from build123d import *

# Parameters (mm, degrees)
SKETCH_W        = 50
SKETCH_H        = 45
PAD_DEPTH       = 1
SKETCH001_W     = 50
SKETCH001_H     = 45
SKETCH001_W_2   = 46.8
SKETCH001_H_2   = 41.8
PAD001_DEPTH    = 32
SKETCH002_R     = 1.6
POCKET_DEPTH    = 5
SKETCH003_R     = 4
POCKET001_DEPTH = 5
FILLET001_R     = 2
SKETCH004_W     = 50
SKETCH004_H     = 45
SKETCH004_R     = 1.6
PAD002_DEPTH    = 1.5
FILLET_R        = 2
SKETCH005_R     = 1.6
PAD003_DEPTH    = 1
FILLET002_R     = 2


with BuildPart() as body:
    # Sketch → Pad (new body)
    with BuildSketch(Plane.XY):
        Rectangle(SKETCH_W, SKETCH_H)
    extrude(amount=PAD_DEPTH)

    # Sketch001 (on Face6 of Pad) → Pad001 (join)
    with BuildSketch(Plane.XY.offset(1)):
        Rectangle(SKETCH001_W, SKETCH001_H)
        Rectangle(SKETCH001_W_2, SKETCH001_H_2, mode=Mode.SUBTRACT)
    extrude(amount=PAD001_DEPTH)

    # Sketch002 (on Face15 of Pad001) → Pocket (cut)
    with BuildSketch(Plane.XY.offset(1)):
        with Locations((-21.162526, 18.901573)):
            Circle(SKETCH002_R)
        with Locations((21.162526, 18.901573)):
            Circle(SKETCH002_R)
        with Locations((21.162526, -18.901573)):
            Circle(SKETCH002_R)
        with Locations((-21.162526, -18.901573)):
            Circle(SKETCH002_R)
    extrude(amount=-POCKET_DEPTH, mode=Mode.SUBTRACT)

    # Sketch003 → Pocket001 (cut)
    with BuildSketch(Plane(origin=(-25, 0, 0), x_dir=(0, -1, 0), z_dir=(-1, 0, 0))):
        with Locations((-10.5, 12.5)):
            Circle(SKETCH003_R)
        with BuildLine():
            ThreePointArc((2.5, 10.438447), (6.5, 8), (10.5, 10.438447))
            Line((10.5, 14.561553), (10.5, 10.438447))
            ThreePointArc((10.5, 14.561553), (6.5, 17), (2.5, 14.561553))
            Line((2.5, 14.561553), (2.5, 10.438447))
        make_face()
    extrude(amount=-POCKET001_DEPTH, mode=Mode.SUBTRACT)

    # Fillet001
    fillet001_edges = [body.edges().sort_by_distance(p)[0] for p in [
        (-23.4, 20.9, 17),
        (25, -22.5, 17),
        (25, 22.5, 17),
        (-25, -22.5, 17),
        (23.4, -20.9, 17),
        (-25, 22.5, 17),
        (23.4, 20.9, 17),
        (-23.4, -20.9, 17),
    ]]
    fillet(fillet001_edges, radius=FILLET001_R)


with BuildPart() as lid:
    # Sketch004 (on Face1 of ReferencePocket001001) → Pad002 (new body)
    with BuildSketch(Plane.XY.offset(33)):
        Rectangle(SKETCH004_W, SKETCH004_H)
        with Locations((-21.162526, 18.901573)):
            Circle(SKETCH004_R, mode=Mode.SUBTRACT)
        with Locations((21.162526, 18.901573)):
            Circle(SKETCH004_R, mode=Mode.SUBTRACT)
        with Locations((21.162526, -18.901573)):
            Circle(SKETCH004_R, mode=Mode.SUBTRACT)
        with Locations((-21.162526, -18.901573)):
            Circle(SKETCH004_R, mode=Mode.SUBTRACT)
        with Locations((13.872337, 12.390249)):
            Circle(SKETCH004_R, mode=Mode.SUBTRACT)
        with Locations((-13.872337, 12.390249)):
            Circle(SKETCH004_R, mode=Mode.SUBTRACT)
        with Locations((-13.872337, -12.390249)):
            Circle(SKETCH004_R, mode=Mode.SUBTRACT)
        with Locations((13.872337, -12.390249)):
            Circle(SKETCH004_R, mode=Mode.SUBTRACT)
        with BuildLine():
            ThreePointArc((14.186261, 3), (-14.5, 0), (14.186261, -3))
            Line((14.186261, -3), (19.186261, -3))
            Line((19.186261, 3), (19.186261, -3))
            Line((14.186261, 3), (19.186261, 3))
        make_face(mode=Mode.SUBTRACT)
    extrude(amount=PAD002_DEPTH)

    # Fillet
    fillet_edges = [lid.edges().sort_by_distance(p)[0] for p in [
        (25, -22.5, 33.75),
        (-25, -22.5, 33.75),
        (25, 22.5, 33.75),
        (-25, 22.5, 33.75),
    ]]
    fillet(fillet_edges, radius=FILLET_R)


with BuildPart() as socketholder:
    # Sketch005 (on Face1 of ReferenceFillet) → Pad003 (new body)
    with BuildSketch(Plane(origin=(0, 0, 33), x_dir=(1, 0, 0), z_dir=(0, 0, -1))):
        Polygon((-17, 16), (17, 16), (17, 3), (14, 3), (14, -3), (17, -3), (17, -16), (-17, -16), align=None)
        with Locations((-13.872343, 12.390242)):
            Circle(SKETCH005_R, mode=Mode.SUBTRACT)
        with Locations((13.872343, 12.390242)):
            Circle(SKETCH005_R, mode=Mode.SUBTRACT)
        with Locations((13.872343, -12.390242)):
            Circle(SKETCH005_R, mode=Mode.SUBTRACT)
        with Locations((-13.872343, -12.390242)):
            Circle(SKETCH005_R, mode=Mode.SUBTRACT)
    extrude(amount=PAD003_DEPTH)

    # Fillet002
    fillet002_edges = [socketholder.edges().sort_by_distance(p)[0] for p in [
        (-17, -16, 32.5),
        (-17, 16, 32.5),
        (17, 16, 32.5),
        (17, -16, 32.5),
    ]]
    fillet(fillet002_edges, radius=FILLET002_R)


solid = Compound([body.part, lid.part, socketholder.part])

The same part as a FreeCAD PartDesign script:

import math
import FreeCAD as App
import Part
import Sketcher
from FreeCAD import Vector
Q = App.Units.Quantity


def edges_at(feature, points):
    """Names of the edges that pass closest to the given points."""
    edges = feature.Shape.Edges
    near = lambda p: min(range(len(edges)), key=lambda i: edges[i].distToShape(Part.Vertex(*p))[0])
    return sorted({f"Edge{near(p) + 1}" for p in points})

doc = App.newDocument("Part")
params = doc.addObject("Spreadsheet::Sheet", "Params")
for row, (alias, value) in enumerate([
    ("sketch1_width", "50 mm"),
    ("sketch1_height", "45 mm"),
    ("pad1_length", "1 mm"),
    ("sketch2_width", "50 mm"),
    ("sketch2_height", "45 mm"),
    ("sketch2_width2", "46.8 mm"),
    ("sketch2_height2", "41.8 mm"),
    ("pad2_length", "32 mm"),
    ("sketch3_diameter", "3.2 mm"),
    ("pocket1_length", "5 mm"),
    ("sketch4_diameter", "8 mm"),
    ("sketch4_radius", "4.5 mm"),
    ("pocket2_length", "5 mm"),
    ("fillet_radius", "2 mm"),
    ("sketch5_diameter", "3.2 mm"),
    ("sketch5_radius", "14.5 mm"),
    ("sketch5_width", "50 mm"),
    ("sketch5_width2", "5 mm"),
    ("sketch5_height", "45 mm"),
    ("pad3_length", "1.5 mm"),
    ("fillet2_radius", "2 mm"),
    ("sketch6_diameter", "3.2 mm"),
    ("sketch6_width", "34 mm"),
    ("sketch6_width2", "3 mm"),
    ("sketch6_height", "32 mm"),
    ("sketch6_height2", "13 mm"),
    ("pad4_length", "1 mm"),
    ("fillet3_radius", "2 mm"),
], start=1):
    params.set(f"A{row}", alias)
    params.set(f"B{row}", "=" + value)
    params.setAlias(f"B{row}", alias)

body = doc.addObject("PartDesign::Body", "Body")

# Sketch on XY plane
sketch1 = body.newObject("Sketcher::SketchObject", "Sketch")
sketch1.AttachmentSupport = (doc.getObject("XY_Plane"), [""])
sketch1.MapMode = "FlatFace"
sketch1.addGeometry([
    Part.LineSegment(Vector(-25, 22, 0), Vector(-25, -22, 0)),
    Part.LineSegment(Vector(-25, -22, 0), Vector(25, -22, 0)),
    Part.LineSegment(Vector(25, -22, 0), Vector(25, 22, 0)),
    Part.LineSegment(Vector(25, 22, 0), Vector(-25, 22, 0)),
], False)
sketch1.addConstraint([
    Sketcher.Constraint("Coincident", 0, 2, 1, 1),
    Sketcher.Constraint("Coincident", 1, 2, 2, 1),
    Sketcher.Constraint("Coincident", 2, 2, 3, 1),
    Sketcher.Constraint("Coincident", 3, 2, 0, 1),
    Sketcher.Constraint("Vertical", 0),
    Sketcher.Constraint("Horizontal", 1),
    Sketcher.Constraint("Vertical", 2),
    Sketcher.Constraint("Horizontal", 3),
    Sketcher.Constraint("Symmetric", 0, 2, 2, 2, -1, 1),
    Sketcher.Constraint("DistanceX", 1, 1, 1, 2, Q("50 mm")),
    Sketcher.Constraint("DistanceY", 0, 2, 0, 1, Q("45 mm")),
])
sketch1.setExpression("Constraints[9]", "Params.sketch1_width")
sketch1.setExpression("Constraints[10]", "Params.sketch1_height")
pad1 = body.newObject("PartDesign::Pad", "Pad")
pad1.Profile = sketch1
pad1.setExpression("Length", "Params.pad1_length")

# Sketch on XY plane
sketch2 = body.newObject("Sketcher::SketchObject", "Sketch001")
sketch2.AttachmentSupport = (doc.getObject("XY_Plane"), [""])
sketch2.MapMode = "FlatFace"
sketch2.AttachmentOffset = App.Placement(Vector(0, 0, 1), App.Rotation())
sketch2.addGeometry([
    Part.LineSegment(Vector(-25, 22, 0), Vector(-25, -22, 0)),  # 0
    Part.LineSegment(Vector(-25, -22, 0), Vector(25, -22, 0)),  # 1
    Part.LineSegment(Vector(25, -22, 0), Vector(25, 22, 0)),  # 2
    Part.LineSegment(Vector(25, 22, 0), Vector(-25, 22, 0)),  # 3
    Part.LineSegment(Vector(23, -21, 0), Vector(-23, -21, 0)),  # 4
    Part.LineSegment(Vector(-23, -21, 0), Vector(-23, 21, 0)),  # 5
    Part.LineSegment(Vector(-23, 21, 0), Vector(23, 21, 0)),  # 6
    Part.LineSegment(Vector(23, 21, 0), Vector(23, -21, 0)),  # 7
], False)
sketch2.addConstraint([
    Sketcher.Constraint("Coincident", 0, 2, 1, 1),
    Sketcher.Constraint("Coincident", 1, 2, 2, 1),
    Sketcher.Constraint("Coincident", 2, 2, 3, 1),
    Sketcher.Constraint("Coincident", 3, 2, 0, 1),
    Sketcher.Constraint("Coincident", 4, 2, 5, 1),
    Sketcher.Constraint("Coincident", 5, 2, 6, 1),
    Sketcher.Constraint("Coincident", 6, 2, 7, 1),
    Sketcher.Constraint("Coincident", 7, 2, 4, 1),
    Sketcher.Constraint("Vertical", 0),
    Sketcher.Constraint("Horizontal", 1),
    Sketcher.Constraint("Vertical", 2),
    Sketcher.Constraint("Horizontal", 3),
    Sketcher.Constraint("Horizontal", 4),
    Sketcher.Constraint("Vertical", 5),
    Sketcher.Constraint("Horizontal", 6),
    Sketcher.Constraint("Vertical", 7),
    Sketcher.Constraint("Symmetric", 0, 2, 2, 2, -1, 1),
    Sketcher.Constraint("Symmetric", 4, 2, 6, 2, -1, 1),
    Sketcher.Constraint("DistanceX", 1, 1, 1, 2, Q("50 mm")),
    Sketcher.Constraint("DistanceY", 0, 2, 0, 1, Q("45 mm")),
    Sketcher.Constraint("DistanceX", 4, 2, 4, 1, Q("46.8 mm")),
    Sketcher.Constraint("DistanceY", 5, 1, 5, 2, Q("41.8 mm")),
])
sketch2.setExpression("Constraints[18]", "Params.sketch2_width")
sketch2.setExpression("Constraints[19]", "Params.sketch2_height")
sketch2.setExpression("Constraints[20]", "Params.sketch2_width2")
sketch2.setExpression("Constraints[21]", "Params.sketch2_height2")
pad2 = body.newObject("PartDesign::Pad", "Pad001")
pad2.Profile = sketch2
pad2.setExpression("Length", "Params.pad2_length")

# Sketch on XY plane
sketch3 = body.newObject("Sketcher::SketchObject", "Sketch002")
sketch3.AttachmentSupport = (doc.getObject("XY_Plane"), [""])
sketch3.MapMode = "FlatFace"
sketch3.AttachmentOffset = App.Placement(Vector(0, 0, 1), App.Rotation())
sketch3.addGeometry([
    Part.Circle(Vector(-21.2, 18.9, 0), Vector(0, 0, 1), 1.6),
    Part.Circle(Vector(21.2, 18.9, 0), Vector(0, 0, 1), 1.6),
    Part.Circle(Vector(21.2, -18.9, 0), Vector(0, 0, 1), 1.6),
    Part.Circle(Vector(-21.2, -18.9, 0), Vector(0, 0, 1), 1.6),
], False)
sketch3.addConstraint([
    Sketcher.Constraint("Equal", 0, 1),
    Sketcher.Constraint("Equal", 1, 2),
    Sketcher.Constraint("Equal", 2, 3),
    Sketcher.Constraint("Symmetric", 0, 3, 2, 3, -1, 1),
    Sketcher.Constraint("Symmetric", 1, 3, 3, 3, -1, 1),
    Sketcher.Constraint("Symmetric", 0, 3, 1, 3, -2),
    Sketcher.Constraint("Diameter", 0, Q("3.2 mm")),
    Sketcher.Constraint("DistanceX", 0, 3, -1, 1, Q("21.162526 mm")),
    Sketcher.Constraint("DistanceY", -1, 1, 0, 3, Q("18.901573 mm")),
])
sketch3.setExpression("Constraints[6]", "Params.sketch3_diameter")
pocket1 = body.newObject("PartDesign::Pocket", "Pocket")
pocket1.Profile = sketch3
pocket1.setExpression("Length", "Params.pocket1_length")

# Sketch on YZ plane
sketch4 = body.newObject("Sketcher::SketchObject", "Sketch003")
sketch4.AttachmentSupport = (doc.getObject("YZ_Plane"), [""])
sketch4.MapMode = "FlatFace"
sketch4.AttachmentOffset = App.Placement(Vector(0, 0, -25), App.Rotation())
sketch4.addGeometry([
    Part.Circle(Vector(10.5, 12.5, 0), Vector(0, 0, 1), 4),  # 0
    Part.ArcOfCircle(Part.Circle(Vector(-6.5, 12.5, 0), Vector(0, 0, 1), 4.5), math.radians(-153), math.radians(-27)),  # 1
    Part.LineSegment(Vector(-10.5, 10.4, 0), Vector(-10.5, 14.6, 0)),  # 2
    Part.ArcOfCircle(Part.Circle(Vector(-6.5, 12.5, 0), Vector(0, 0, 1), 4.5), math.radians(27), math.radians(153)),  # 3
    Part.LineSegment(Vector(-2.5, 14.6, 0), Vector(-2.5, 10.4, 0)),  # 4
], False)
sketch4.addConstraint([
    Sketcher.Constraint("Coincident", 1, 1, 2, 1),
    Sketcher.Constraint("Coincident", 2, 2, 3, 2),
    Sketcher.Constraint("Coincident", 3, 1, 4, 1),
    Sketcher.Constraint("Coincident", 4, 2, 1, 2),
    Sketcher.Constraint("Vertical", 2),
    Sketcher.Constraint("Vertical", 4),
    Sketcher.Constraint("Coincident", 3, 3, 1, 3),
    Sketcher.Constraint("Equal", 1, 3),
    Sketcher.Constraint("Horizontal", 0, 3, 1, 3),
    Sketcher.Constraint("Horizontal", 2, 2, 3, 1),
    Sketcher.Constraint("Diameter", 0, Q("8 mm")),
    Sketcher.Constraint("Radius", 1, Q("4.5 mm")),
    Sketcher.Constraint("DistanceX", 1, 3, 0, 3, Q("17 mm")),
    Sketcher.Constraint("DistanceX", 1, 1, 3, 3, Q("4 mm")),
    Sketcher.Constraint("DistanceX", -1, 1, 0, 3, Q("10.5 mm")),
    Sketcher.Constraint("DistanceY", -1, 1, 0, 3, Q("12.5 mm")),
])
sketch4.setExpression("Constraints[10]", "Params.sketch4_diameter")
sketch4.setExpression("Constraints[11]", "Params.sketch4_radius")
pocket2 = body.newObject("PartDesign::Pocket", "Pocket001")
pocket2.Profile = sketch4
pocket2.setExpression("Length", "Params.pocket2_length")
pocket2.Reversed = True
doc.recompute()

fillet = body.newObject("PartDesign::Fillet", "Fillet")
fillet.Base = (pocket2, edges_at(pocket2, [
    (-23.4, 20.9, 17),
    (25, -22.5, 16.5),
    (25, 22.5, 16.5),
    (-25, -22.5, 16.5),
    (23.4, -20.9, 17),
    (-25, 22.5, 16.5),
    (23.4, 20.9, 17),
    (-23.4, -20.9, 17),
]))
fillet.setExpression("Radius", "Params.fillet_radius")
body2 = doc.addObject("PartDesign::Body", "Body001")

# Sketch on XY plane
sketch5 = body2.newObject("Sketcher::SketchObject", "Sketch004")
sketch5.AttachmentSupport = (doc.getObject("XY_Plane001"), [""])
sketch5.MapMode = "FlatFace"
sketch5.AttachmentOffset = App.Placement(Vector(0, 0, 33), App.Rotation())
sketch5.addGeometry([
    Part.LineSegment(Vector(-25, 22.5, 0), Vector(-25, -22.5, 0)),  # 0
    Part.LineSegment(Vector(-25, -22.5, 0), Vector(25, -22.5, 0)),  # 1
    Part.LineSegment(Vector(25, -22.5, 0), Vector(25, 22.5, 0)),  # 2
    Part.LineSegment(Vector(25, 22.5, 0), Vector(-25, 22.5, 0)),  # 3
    Part.Circle(Vector(-21.2, -18.9, 0), Vector(0, 0, 1), 1.6),  # 4
    Part.Circle(Vector(-13.9, -12.4, 0), Vector(0, 0, 1), 1.6),  # 5
    Part.Circle(Vector(21.2, -18.9, 0), Vector(0, 0, 1), 1.6),  # 6
    Part.Circle(Vector(13.9, -12.4, 0), Vector(0, 0, 1), 1.6),  # 7
    Part.Circle(Vector(-13.9, 12.4, 0), Vector(0, 0, 1), 1.6),  # 8
    Part.Circle(Vector(-21.2, 18.9, 0), Vector(0, 0, 1), 1.6),  # 9
    Part.ArcOfCircle(Part.Circle(Vector(0, 0, 0), Vector(0, 0, 1), 14.5), math.radians(12), math.radians(348)),  # 10
    Part.LineSegment(Vector(14.2, 3, 0), Vector(19.2, 3, 0)),  # 11
    Part.LineSegment(Vector(19.2, 3, 0), Vector(19.2, -3, 0)),  # 12
    Part.LineSegment(Vector(19.2, -3, 0), Vector(14.2, -3, 0)),  # 13
    Part.Circle(Vector(13.9, 12.4, 0), Vector(0, 0, 1), 1.6),  # 14
    Part.Circle(Vector(21.2, 18.9, 0), Vector(0, 0, 1), 1.6),  # 15
], False)
sketch5.addConstraint([
    Sketcher.Constraint("Coincident", 0, 2, 1, 1),
    Sketcher.Constraint("Coincident", 1, 2, 2, 1),
    Sketcher.Constraint("Coincident", 2, 2, 3, 1),
    Sketcher.Constraint("Coincident", 3, 2, 0, 1),
    Sketcher.Constraint("Coincident", 10, 1, 11, 1),
    Sketcher.Constraint("Coincident", 11, 2, 12, 1),
    Sketcher.Constraint("Coincident", 12, 2, 13, 1),
    Sketcher.Constraint("Coincident", 13, 2, 10, 2),
    Sketcher.Constraint("Vertical", 0),
    Sketcher.Constraint("Horizontal", 1),
    Sketcher.Constraint("Vertical", 2),
    Sketcher.Constraint("Horizontal", 3),
    Sketcher.Constraint("Horizontal", 11),
    Sketcher.Constraint("Vertical", 12),
    Sketcher.Constraint("Horizontal", 13),
    Sketcher.Constraint("Coincident", 10, 3, -1, 1),
    Sketcher.Constraint("Equal", 4, 5),
    Sketcher.Constraint("Equal", 5, 6),
    Sketcher.Constraint("Equal", 6, 7),
    Sketcher.Constraint("Equal", 7, 8),
    Sketcher.Constraint("Equal", 8, 9),
    Sketcher.Constraint("Equal", 9, 14),
    Sketcher.Constraint("Equal", 14, 15),
    Sketcher.Constraint("Symmetric", 7, 3, 8, 3, -1, 1),
    Sketcher.Constraint("Symmetric", 6, 3, 9, 3, -1, 1),
    Sketcher.Constraint("Symmetric", 5, 3, 14, 3, -1, 1),
    Sketcher.Constraint("Symmetric", 4, 3, 15, 3, -1, 1),
    Sketcher.Constraint("Symmetric", 0, 2, 2, 2, -1, 1),
    Sketcher.Constraint("Symmetric", 4, 3, 6, 3, -2),
    Sketcher.Constraint("Symmetric", 5, 3, 7, 3, -2),
    Sketcher.Constraint("Vertical", 10, 1, 13, 2),
    Sketcher.Constraint("Diameter", 4, Q("3.2 mm")),
    Sketcher.Constraint("Radius", 10, Q("14.5 mm")),
    Sketcher.Constraint("DistanceX", 1, 1, 1, 2, Q("50 mm")),
    Sketcher.Constraint("DistanceX", 11, 1, 11, 2, Q("5 mm")),
    Sketcher.Constraint("DistanceY", 0, 2, 0, 1, Q("45 mm")),
    Sketcher.Constraint("DistanceY", 12, 2, 12, 1, Q("6 mm")),
    Sketcher.Constraint("DistanceY", 5, 3, 8, 3, Q("24.780498 mm")),
    Sketcher.Constraint("DistanceX", 4, 3, 5, 3, Q("7.290189 mm")),
    Sketcher.Constraint("DistanceY", 4, 3, 8, 3, Q("31.291822 mm")),
    Sketcher.Constraint("DistanceX", 4, 3, -1, 1, Q("21.162526 mm")),
])
sketch5.setExpression("Constraints[31]", "Params.sketch5_diameter")
sketch5.setExpression("Constraints[32]", "Params.sketch5_radius")
sketch5.setExpression("Constraints[33]", "Params.sketch5_width")
sketch5.setExpression("Constraints[34]", "Params.sketch5_width2")
sketch5.setExpression("Constraints[35]", "Params.sketch5_height")
pad3 = body2.newObject("PartDesign::Pad", "Pad002")
pad3.Profile = sketch5
pad3.setExpression("Length", "Params.pad3_length")
doc.recompute()

fillet2 = body2.newObject("PartDesign::Fillet", "Fillet001")
fillet2.Base = (pad3, edges_at(pad3, [
    (25, -22.5, 33.75),
    (-25, -22.5, 33.75),
    (25, 22.5, 33.75),
    (-25, 22.5, 33.75),
]))
fillet2.setExpression("Radius", "Params.fillet2_radius")
body3 = doc.addObject("PartDesign::Body", "Body002")

# Sketch on XY plane
sketch6 = body3.newObject("Sketcher::SketchObject", "Sketch005")
sketch6.AttachmentSupport = (doc.getObject("XY_Plane002"), [""])
sketch6.MapMode = "FlatFace"
sketch6.AttachmentOffset = App.Placement(Vector(0, 0, 33), App.Rotation())
sketch6.addGeometry([
    Part.LineSegment(Vector(17, -16, 0), Vector(-17, -16, 0)),  # 0
    Part.LineSegment(Vector(-17, -16, 0), Vector(-17, 16, 0)),  # 1
    Part.LineSegment(Vector(-17, 16, 0), Vector(17, 16, 0)),  # 2
    Part.LineSegment(Vector(17, 16, 0), Vector(17, 3, 0)),  # 3
    Part.LineSegment(Vector(17, 3, 0), Vector(14, 3, 0)),  # 4
    Part.LineSegment(Vector(14, 3, 0), Vector(14, -3, 0)),  # 5
    Part.LineSegment(Vector(14, -3, 0), Vector(17, -3, 0)),  # 6
    Part.LineSegment(Vector(17, -3, 0), Vector(17, -16, 0)),  # 7
    Part.Circle(Vector(13.9, 12.4, 0), Vector(0, 0, 1), 1.6),  # 8
    Part.Circle(Vector(-13.9, 12.4, 0), Vector(0, 0, 1), 1.6),  # 9
    Part.Circle(Vector(13.9, -12.4, 0), Vector(0, 0, 1), 1.6),  # 10
    Part.Circle(Vector(-13.9, -12.4, 0), Vector(0, 0, 1), 1.6),  # 11
], False)
sketch6.addConstraint([
    Sketcher.Constraint("Coincident", 0, 2, 1, 1),
    Sketcher.Constraint("Coincident", 1, 2, 2, 1),
    Sketcher.Constraint("Coincident", 2, 2, 3, 1),
    Sketcher.Constraint("Coincident", 3, 2, 4, 1),
    Sketcher.Constraint("Coincident", 4, 2, 5, 1),
    Sketcher.Constraint("Coincident", 5, 2, 6, 1),
    Sketcher.Constraint("Coincident", 6, 2, 7, 1),
    Sketcher.Constraint("Coincident", 7, 2, 0, 1),
    Sketcher.Constraint("Horizontal", 0),
    Sketcher.Constraint("Vertical", 1),
    Sketcher.Constraint("Horizontal", 2),
    Sketcher.Constraint("Vertical", 3),
    Sketcher.Constraint("Horizontal", 4),
    Sketcher.Constraint("Vertical", 5),
    Sketcher.Constraint("Horizontal", 6),
    Sketcher.Constraint("Vertical", 7),
    Sketcher.Constraint("Equal", 8, 9),
    Sketcher.Constraint("Equal", 9, 10),
    Sketcher.Constraint("Equal", 10, 11),
    Sketcher.Constraint("Symmetric", 9, 3, 10, 3, -1, 1),
    Sketcher.Constraint("Symmetric", 8, 3, 11, 3, -1, 1),
    Sketcher.Constraint("Symmetric", 0, 2, 2, 2, -1, 1),
    Sketcher.Constraint("Symmetric", 8, 3, 9, 3, -2),
    Sketcher.Constraint("Symmetric", 3, 2, 6, 2, -1),
    Sketcher.Constraint("Diameter", 8, Q("3.2 mm")),
    Sketcher.Constraint("DistanceX", 0, 2, 0, 1, Q("34 mm")),
    Sketcher.Constraint("DistanceX", 4, 2, 4, 1, Q("3 mm")),
    Sketcher.Constraint("DistanceY", 1, 1, 1, 2, Q("32 mm")),
    Sketcher.Constraint("DistanceY", 3, 2, 3, 1, Q("13 mm")),
    Sketcher.Constraint("DistanceX", -1, 1, 8, 3, Q("13.872343 mm")),
    Sketcher.Constraint("DistanceY", -1, 1, 8, 3, Q("12.390242 mm")),
])
sketch6.setExpression("Constraints[24]", "Params.sketch6_diameter")
sketch6.setExpression("Constraints[25]", "Params.sketch6_width")
sketch6.setExpression("Constraints[26]", "Params.sketch6_width2")
sketch6.setExpression("Constraints[27]", "Params.sketch6_height")
sketch6.setExpression("Constraints[28]", "Params.sketch6_height2")
pad4 = body3.newObject("PartDesign::Pad", "Pad003")
pad4.Profile = sketch6
pad4.setExpression("Length", "Params.pad4_length")
pad4.Reversed = True
doc.recompute()

fillet3 = body3.newObject("PartDesign::Fillet", "Fillet002")
fillet3.Base = (pad4, edges_at(pad4, [
    (-17, -16, 32.5),
    (-17, 16, 32.5),
    (17, 16, 32.5),
    (17, -16, 32.5),
]))
fillet3.setExpression("Radius", "Params.fillet3_radius")

doc.recompute()
